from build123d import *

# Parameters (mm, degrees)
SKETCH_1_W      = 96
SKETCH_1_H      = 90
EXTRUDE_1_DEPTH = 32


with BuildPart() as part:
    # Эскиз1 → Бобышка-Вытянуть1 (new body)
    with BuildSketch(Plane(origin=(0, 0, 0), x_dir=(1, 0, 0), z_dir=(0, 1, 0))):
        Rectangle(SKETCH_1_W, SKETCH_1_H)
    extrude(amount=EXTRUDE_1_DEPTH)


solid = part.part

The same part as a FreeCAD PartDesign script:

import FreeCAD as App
import Part
import Sketcher
from FreeCAD import Vector

doc = App.newDocument("Part")
body = doc.addObject("PartDesign::Body", "Body")

# Sketch on XZ plane
sketch1 = doc.addObject("Sketcher::SketchObject", "Sketch")
body.addObject(sketch1)
sketch1.AttachmentSupport = (doc.XZ_Plane, [""])
sketch1.MapMode = "FlatFace"
sketch1.addGeometry([
    Part.LineSegment(Vector(-48, -45, 0), Vector(-48, 45, 0)),
    Part.LineSegment(Vector(-48, 45, 0), Vector(48, 45, 0)),
    Part.LineSegment(Vector(48, 45, 0), Vector(48, -45, 0)),
    Part.LineSegment(Vector(48, -45, 0), Vector(-48, -45, 0)),
], False)
sketch1.addConstraint([
    Sketcher.Constraint("Coincident", 0, 2, 1, 1),
    Sketcher.Constraint("Coincident", 1, 2, 2, 1),
    Sketcher.Constraint("Coincident", 2, 2, 3, 1),
    Sketcher.Constraint("Coincident", 3, 2, 0, 1),
    Sketcher.Constraint("Vertical", 0),
    Sketcher.Constraint("Horizontal", 1),
    Sketcher.Constraint("Vertical", 2),
    Sketcher.Constraint("Horizontal", 3),
    Sketcher.Constraint("Symmetric", 0, 2, 2, 2, -1, 1),
    Sketcher.Constraint("DistanceX", 1, 1, 1, 2, 96.0),
    Sketcher.Constraint("DistanceY", 0, 1, 0, 2, 90.0),
])
pad1 = doc.addObject("PartDesign::Pad", "Pad")
body.addObject(pad1)
pad1.Profile = sketch1
pad1.Length = 32
pad1.Reversed = True

doc.recompute()
